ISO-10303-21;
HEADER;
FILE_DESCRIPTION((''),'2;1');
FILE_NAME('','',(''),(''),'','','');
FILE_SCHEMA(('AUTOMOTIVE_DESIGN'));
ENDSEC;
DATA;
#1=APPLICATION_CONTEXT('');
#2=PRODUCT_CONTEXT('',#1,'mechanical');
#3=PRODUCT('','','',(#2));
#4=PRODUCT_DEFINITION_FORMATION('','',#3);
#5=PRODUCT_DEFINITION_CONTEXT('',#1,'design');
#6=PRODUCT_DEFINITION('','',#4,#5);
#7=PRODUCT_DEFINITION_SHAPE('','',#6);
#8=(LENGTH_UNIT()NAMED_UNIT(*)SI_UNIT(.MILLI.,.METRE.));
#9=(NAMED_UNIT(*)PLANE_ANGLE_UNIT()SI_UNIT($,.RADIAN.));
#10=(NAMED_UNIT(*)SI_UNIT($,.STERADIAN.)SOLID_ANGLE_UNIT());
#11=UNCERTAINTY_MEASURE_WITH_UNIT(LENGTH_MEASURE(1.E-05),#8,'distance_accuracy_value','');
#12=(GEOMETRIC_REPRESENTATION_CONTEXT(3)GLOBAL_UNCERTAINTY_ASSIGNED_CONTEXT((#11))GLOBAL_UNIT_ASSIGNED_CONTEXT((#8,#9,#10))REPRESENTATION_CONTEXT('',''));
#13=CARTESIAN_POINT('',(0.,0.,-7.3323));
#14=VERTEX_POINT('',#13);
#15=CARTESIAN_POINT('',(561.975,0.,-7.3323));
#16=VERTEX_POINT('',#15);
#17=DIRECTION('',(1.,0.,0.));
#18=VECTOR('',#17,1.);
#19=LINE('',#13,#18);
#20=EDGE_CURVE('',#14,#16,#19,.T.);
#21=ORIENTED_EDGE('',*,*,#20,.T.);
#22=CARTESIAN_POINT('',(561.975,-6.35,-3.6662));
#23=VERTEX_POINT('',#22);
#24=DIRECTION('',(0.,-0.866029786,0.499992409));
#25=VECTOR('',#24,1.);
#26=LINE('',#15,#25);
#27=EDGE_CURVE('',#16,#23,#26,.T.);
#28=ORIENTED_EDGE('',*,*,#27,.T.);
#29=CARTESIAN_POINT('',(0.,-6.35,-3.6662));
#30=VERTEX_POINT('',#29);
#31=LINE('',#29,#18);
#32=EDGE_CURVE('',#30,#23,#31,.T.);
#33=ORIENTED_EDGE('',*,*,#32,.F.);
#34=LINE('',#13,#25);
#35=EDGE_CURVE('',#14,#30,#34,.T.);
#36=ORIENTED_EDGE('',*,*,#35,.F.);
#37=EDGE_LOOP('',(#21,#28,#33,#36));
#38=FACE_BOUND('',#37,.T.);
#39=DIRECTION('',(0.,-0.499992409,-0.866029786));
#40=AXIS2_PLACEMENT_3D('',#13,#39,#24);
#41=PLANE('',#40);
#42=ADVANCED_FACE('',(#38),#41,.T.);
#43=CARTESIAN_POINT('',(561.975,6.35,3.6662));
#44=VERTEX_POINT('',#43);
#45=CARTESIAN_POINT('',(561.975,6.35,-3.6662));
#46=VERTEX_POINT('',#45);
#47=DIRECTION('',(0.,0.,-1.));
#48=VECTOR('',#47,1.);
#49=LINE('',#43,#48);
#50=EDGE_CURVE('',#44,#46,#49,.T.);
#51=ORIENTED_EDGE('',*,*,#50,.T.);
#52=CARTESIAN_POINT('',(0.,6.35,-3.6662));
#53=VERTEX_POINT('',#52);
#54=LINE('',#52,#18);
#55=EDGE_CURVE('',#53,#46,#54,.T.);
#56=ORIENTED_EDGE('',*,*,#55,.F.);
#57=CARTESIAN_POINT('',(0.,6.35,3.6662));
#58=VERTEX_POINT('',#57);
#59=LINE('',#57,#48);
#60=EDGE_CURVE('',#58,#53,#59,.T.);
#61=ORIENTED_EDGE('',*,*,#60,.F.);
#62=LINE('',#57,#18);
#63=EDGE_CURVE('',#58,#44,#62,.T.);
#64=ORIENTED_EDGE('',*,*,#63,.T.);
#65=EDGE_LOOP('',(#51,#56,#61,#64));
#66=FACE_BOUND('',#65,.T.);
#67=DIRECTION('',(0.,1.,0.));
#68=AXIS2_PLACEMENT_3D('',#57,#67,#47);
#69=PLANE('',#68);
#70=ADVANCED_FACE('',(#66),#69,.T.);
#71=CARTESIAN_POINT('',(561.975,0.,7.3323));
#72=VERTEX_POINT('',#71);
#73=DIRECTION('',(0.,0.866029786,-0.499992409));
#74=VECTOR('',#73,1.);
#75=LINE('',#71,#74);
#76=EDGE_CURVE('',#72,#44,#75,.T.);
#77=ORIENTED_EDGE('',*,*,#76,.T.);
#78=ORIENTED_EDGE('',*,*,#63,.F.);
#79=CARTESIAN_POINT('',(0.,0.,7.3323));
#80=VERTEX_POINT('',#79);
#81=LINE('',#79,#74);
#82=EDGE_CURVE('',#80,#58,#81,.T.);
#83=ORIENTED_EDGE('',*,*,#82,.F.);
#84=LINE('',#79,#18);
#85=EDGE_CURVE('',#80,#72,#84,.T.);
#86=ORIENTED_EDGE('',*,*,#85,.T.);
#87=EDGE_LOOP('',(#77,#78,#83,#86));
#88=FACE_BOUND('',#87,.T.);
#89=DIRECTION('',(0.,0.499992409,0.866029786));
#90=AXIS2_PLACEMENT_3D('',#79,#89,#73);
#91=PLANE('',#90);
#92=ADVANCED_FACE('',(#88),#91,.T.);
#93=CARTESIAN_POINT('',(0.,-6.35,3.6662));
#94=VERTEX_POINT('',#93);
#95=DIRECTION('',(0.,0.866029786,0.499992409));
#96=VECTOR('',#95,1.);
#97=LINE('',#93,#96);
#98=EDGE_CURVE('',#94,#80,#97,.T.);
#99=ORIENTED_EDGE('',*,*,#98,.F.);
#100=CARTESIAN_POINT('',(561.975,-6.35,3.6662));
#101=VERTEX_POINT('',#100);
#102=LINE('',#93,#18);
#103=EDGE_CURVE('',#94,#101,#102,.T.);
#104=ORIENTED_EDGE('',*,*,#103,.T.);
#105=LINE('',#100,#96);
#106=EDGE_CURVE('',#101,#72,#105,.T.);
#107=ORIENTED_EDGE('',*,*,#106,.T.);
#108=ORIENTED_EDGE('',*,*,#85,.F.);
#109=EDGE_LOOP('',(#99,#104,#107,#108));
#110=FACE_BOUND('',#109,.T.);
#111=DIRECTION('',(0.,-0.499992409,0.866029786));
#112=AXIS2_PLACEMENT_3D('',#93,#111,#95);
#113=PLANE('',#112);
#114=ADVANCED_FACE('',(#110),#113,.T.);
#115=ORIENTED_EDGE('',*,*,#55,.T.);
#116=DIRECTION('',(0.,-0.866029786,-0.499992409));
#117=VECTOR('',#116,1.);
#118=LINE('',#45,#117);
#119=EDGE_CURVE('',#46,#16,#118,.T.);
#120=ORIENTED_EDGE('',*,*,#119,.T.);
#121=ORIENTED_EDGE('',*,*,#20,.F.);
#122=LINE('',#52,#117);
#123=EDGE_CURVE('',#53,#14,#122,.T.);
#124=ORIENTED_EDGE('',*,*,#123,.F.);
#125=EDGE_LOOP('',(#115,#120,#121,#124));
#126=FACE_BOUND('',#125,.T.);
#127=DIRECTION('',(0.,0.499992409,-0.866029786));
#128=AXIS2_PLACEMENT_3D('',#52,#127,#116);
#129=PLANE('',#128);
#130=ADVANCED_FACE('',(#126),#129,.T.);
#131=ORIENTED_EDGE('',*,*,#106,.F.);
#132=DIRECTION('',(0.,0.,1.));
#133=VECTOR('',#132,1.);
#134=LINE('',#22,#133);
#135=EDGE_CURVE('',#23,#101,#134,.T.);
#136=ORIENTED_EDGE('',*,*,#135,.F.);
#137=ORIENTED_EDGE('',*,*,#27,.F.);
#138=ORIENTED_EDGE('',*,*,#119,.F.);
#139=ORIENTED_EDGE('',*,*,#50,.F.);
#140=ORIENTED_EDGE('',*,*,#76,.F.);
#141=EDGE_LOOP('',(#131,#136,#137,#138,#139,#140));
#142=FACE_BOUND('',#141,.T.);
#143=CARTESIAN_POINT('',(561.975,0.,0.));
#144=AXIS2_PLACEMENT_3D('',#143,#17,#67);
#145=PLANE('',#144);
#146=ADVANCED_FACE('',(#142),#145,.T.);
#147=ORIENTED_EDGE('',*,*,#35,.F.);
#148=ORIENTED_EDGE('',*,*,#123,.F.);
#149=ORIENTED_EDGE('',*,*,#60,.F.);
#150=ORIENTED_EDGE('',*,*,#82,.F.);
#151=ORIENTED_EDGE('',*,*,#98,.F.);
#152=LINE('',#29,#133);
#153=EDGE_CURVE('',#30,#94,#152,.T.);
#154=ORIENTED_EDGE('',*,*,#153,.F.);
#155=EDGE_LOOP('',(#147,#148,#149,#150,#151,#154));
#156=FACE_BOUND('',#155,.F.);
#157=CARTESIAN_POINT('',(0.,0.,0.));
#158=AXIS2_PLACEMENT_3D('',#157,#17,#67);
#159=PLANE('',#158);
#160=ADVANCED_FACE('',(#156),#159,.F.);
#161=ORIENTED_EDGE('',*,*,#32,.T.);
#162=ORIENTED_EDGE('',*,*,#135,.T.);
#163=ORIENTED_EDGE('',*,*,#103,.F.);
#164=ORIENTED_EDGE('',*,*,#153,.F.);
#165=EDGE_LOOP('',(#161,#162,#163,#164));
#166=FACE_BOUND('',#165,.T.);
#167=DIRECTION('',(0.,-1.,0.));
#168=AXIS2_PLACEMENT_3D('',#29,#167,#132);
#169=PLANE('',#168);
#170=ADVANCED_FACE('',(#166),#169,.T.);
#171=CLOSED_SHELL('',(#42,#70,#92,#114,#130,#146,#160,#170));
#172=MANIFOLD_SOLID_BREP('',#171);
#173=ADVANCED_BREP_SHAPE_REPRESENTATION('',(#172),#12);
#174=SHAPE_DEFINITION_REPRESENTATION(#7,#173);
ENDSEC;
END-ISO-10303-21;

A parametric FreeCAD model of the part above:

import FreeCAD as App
import Part
import Sketcher
from FreeCAD import Vector
Q = App.Units.Quantity


def add_polygon(sketch, points):
    """Adds a closed chain of lines whose ends are joined by coincident constraints."""
    first, n = sketch.GeometryCount, len(points)
    for a, b in zip(points, points[1:] + points[:1]):
        sketch.addGeometry(Part.LineSegment(App.Vector(*a, 0), App.Vector(*b, 0)), False)
    for i in range(n):
        sketch.addConstraint(Sketcher.Constraint("Coincident", first + i, 2, first + (i + 1) % n, 1))

doc = App.newDocument("Part")
body = doc.addObject("PartDesign::Body", "Body")

# Sketch on YZ plane
sketch1 = body.newObject("Sketcher::SketchObject", "Sketch")
sketch1.AttachmentSupport = (doc.getObject("YZ_Plane"), [""])
sketch1.MapMode = "FlatFace"
add_polygon(sketch1, [(0, -7), (6, -4), (6, 4), (0, 7), (-6, 4), (-6, -4)])  # lines 0-5
sketch1.addConstraint([
    Sketcher.Constraint("Vertical", 1),
    Sketcher.Constraint("Vertical", 4),
    Sketcher.Constraint("Symmetric", 0, 2, 3, 2, -1, 1),
    Sketcher.Constraint("Symmetric", 2, 2, 5, 2, -1, 1),
    Sketcher.Constraint("PointOnObject", 2, 2, -2),
    Sketcher.Constraint("Parallel", 2, 5),
    Sketcher.Constraint("Horizontal", 1, 2, 3, 2),
    Sketcher.Constraint("DistanceX", 3, 2, 1, 2, Q("0.5 in")),
    Sketcher.Constraint("Angle", 0, Q("29.9995 deg")),
    Sketcher.Constraint("DistanceY", 0, 2, 2, 2, Q("0.433 in")),
])
pad1 = body.newObject("PartDesign::Pad", "Pad")
pad1.Profile = sketch1
pad1.Length = Q("22.125 in")

doc.recompute()
